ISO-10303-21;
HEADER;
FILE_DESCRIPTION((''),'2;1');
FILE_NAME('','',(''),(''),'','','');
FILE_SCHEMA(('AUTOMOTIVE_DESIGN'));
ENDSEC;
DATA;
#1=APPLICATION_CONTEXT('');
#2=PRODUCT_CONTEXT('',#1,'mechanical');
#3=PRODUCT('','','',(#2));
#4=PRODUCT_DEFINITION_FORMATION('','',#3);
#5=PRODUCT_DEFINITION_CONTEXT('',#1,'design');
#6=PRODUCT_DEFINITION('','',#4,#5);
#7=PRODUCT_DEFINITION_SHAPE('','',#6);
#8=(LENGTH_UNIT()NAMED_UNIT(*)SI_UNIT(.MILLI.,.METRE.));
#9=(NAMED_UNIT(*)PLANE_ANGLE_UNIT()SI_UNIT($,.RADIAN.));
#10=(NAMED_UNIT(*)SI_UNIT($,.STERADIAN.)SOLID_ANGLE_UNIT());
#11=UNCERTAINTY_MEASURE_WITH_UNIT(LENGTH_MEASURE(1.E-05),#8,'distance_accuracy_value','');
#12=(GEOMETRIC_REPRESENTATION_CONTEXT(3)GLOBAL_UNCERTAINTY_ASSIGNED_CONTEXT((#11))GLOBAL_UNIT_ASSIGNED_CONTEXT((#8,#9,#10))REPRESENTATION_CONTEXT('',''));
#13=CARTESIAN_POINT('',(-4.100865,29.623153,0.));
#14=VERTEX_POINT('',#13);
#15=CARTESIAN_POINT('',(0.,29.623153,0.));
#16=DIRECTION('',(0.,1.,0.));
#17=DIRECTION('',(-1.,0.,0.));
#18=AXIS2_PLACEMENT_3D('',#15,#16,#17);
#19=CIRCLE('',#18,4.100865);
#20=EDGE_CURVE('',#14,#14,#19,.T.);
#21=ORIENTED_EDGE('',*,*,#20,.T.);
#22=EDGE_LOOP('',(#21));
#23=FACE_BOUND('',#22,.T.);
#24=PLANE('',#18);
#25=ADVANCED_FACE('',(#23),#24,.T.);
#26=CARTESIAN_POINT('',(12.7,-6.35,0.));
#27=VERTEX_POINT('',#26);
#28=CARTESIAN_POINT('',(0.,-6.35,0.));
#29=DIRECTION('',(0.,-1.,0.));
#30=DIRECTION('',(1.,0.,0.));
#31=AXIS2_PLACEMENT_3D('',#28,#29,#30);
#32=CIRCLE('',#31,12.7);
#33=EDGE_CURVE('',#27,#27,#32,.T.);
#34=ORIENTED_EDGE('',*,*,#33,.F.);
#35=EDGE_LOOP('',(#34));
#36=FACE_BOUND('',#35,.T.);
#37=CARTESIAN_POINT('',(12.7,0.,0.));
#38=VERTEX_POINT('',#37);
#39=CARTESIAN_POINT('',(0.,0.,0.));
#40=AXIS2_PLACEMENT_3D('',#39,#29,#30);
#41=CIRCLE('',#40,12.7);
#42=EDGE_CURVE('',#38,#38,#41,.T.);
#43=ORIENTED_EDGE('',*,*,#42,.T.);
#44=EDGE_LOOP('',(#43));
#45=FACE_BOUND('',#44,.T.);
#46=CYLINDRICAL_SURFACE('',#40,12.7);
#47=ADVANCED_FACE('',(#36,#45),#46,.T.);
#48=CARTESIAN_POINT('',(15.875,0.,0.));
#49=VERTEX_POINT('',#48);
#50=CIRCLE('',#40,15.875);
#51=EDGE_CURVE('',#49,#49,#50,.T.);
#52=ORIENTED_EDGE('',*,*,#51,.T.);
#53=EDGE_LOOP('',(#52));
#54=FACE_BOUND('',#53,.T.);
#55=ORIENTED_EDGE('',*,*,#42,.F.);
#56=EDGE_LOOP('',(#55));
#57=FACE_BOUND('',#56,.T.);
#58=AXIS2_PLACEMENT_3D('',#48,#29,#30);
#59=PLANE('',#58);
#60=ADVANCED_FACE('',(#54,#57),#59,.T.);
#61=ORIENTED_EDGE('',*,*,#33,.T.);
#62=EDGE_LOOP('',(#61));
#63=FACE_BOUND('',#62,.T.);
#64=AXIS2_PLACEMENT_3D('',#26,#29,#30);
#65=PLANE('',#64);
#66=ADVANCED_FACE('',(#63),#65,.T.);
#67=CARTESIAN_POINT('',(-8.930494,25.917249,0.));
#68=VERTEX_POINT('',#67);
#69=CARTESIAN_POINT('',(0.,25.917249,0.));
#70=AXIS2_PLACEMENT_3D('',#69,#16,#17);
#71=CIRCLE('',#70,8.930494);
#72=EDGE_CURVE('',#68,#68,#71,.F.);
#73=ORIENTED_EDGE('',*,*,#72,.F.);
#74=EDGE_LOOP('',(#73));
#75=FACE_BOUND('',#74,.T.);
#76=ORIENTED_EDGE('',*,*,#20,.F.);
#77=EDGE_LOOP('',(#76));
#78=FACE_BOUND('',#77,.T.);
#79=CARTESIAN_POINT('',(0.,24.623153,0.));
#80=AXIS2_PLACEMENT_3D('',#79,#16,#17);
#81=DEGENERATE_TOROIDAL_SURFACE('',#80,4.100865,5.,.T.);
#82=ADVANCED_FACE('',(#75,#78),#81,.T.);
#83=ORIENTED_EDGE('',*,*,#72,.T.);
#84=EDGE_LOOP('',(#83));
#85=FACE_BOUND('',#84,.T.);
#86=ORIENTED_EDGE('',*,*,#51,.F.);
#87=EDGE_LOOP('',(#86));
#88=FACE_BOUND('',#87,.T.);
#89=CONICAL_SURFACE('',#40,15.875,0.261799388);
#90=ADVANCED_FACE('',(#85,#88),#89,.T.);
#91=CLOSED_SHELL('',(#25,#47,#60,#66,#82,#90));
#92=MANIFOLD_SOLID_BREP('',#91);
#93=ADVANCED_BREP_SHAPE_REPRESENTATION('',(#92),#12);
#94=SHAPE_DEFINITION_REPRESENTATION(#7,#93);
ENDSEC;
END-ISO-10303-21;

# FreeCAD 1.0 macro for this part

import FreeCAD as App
import Part
import Sketcher

V = App.Vector
Q = App.Units.Quantity


def edges_at(feature, points):
    """Names of the edges that pass closest to the given points."""
    edges = feature.Shape.Edges
    near = lambda p: min(range(len(edges)), key=lambda i: edges[i].distToShape(Part.Vertex(*p))[0])
    return sorted({f"Edge{near(p) + 1}" for p in points})

doc = App.newDocument("Part")
body = doc.addObject("PartDesign::Body", "Body")

sketch1 = body.newObject("Sketcher::SketchObject", "Sketch")
sketch1.AttachmentSupport = (doc.getObject("XY_Plane"), [""])
sketch1.MapMode = "FlatFace"
sketch1.addGeometry([
    Part.LineSegment(V(0, 29.6, 0), V(0, -6.3, 0)),
    Part.LineSegment(V(0, -6.3, 0), V(12.7, -6.3, 0)),
    Part.LineSegment(V(12.7, -6.3, 0), V(12.7, 0, 0)),
    Part.LineSegment(V(12.7, 0, 0), V(15.9, 0, 0)),
    Part.LineSegment(V(15.9, 0, 0), V(7.9, 29.6, 0)),
    Part.LineSegment(V(7.9, 29.6, 0), V(0, 29.6, 0)),
], False)
sketch1.addConstraint([
    Sketcher.Constraint("Coincident", 0, 2, 1, 1),
    Sketcher.Constraint("Coincident", 1, 2, 2, 1),
    Sketcher.Constraint("Coincident", 2, 2, 3, 1),
    Sketcher.Constraint("Coincident", 3, 2, 4, 1),
    Sketcher.Constraint("Coincident", 4, 2, 5, 1),
    Sketcher.Constraint("Coincident", 5, 2, 0, 1),
    Sketcher.Constraint("Vertical", 0),
    Sketcher.Constraint("Horizontal", 1),
    Sketcher.Constraint("Vertical", 2),
    Sketcher.Constraint("Horizontal", 3),
    Sketcher.Constraint("Horizontal", 5),
    Sketcher.Constraint("PointOnObject", 0, 2, -2),
    Sketcher.Constraint("PointOnObject", 2, 2, -1),
    Sketcher.Constraint("DistanceX", 1, 1, 1, 2, Q("0.5 in")),
    Sketcher.Constraint("Angle", 4, Q("105 deg")),
    Sketcher.Constraint("DistanceY", 2, 1, 2, 2, Q("0.25 in")),
    Sketcher.Constraint("DistanceX", 3, 1, 3, 2, Q("0.125 in")),
    Sketcher.Constraint("DistanceX", 5, 2, 5, 1, Q("0.3125 in")),
])
revolution = body.newObject("PartDesign::Revolution", "Revolution")
revolution.Profile = sketch1
revolution.ReferenceAxis = (sketch1, ["V_Axis"])
revolution.Angle = 360
doc.recompute()

fillet = body.newObject("PartDesign::Fillet", "Fillet")
fillet.Base = (revolution, edges_at(revolution, [(-7.938, 29.623, 0)]))
fillet.Radius = 5

doc.recompute()
